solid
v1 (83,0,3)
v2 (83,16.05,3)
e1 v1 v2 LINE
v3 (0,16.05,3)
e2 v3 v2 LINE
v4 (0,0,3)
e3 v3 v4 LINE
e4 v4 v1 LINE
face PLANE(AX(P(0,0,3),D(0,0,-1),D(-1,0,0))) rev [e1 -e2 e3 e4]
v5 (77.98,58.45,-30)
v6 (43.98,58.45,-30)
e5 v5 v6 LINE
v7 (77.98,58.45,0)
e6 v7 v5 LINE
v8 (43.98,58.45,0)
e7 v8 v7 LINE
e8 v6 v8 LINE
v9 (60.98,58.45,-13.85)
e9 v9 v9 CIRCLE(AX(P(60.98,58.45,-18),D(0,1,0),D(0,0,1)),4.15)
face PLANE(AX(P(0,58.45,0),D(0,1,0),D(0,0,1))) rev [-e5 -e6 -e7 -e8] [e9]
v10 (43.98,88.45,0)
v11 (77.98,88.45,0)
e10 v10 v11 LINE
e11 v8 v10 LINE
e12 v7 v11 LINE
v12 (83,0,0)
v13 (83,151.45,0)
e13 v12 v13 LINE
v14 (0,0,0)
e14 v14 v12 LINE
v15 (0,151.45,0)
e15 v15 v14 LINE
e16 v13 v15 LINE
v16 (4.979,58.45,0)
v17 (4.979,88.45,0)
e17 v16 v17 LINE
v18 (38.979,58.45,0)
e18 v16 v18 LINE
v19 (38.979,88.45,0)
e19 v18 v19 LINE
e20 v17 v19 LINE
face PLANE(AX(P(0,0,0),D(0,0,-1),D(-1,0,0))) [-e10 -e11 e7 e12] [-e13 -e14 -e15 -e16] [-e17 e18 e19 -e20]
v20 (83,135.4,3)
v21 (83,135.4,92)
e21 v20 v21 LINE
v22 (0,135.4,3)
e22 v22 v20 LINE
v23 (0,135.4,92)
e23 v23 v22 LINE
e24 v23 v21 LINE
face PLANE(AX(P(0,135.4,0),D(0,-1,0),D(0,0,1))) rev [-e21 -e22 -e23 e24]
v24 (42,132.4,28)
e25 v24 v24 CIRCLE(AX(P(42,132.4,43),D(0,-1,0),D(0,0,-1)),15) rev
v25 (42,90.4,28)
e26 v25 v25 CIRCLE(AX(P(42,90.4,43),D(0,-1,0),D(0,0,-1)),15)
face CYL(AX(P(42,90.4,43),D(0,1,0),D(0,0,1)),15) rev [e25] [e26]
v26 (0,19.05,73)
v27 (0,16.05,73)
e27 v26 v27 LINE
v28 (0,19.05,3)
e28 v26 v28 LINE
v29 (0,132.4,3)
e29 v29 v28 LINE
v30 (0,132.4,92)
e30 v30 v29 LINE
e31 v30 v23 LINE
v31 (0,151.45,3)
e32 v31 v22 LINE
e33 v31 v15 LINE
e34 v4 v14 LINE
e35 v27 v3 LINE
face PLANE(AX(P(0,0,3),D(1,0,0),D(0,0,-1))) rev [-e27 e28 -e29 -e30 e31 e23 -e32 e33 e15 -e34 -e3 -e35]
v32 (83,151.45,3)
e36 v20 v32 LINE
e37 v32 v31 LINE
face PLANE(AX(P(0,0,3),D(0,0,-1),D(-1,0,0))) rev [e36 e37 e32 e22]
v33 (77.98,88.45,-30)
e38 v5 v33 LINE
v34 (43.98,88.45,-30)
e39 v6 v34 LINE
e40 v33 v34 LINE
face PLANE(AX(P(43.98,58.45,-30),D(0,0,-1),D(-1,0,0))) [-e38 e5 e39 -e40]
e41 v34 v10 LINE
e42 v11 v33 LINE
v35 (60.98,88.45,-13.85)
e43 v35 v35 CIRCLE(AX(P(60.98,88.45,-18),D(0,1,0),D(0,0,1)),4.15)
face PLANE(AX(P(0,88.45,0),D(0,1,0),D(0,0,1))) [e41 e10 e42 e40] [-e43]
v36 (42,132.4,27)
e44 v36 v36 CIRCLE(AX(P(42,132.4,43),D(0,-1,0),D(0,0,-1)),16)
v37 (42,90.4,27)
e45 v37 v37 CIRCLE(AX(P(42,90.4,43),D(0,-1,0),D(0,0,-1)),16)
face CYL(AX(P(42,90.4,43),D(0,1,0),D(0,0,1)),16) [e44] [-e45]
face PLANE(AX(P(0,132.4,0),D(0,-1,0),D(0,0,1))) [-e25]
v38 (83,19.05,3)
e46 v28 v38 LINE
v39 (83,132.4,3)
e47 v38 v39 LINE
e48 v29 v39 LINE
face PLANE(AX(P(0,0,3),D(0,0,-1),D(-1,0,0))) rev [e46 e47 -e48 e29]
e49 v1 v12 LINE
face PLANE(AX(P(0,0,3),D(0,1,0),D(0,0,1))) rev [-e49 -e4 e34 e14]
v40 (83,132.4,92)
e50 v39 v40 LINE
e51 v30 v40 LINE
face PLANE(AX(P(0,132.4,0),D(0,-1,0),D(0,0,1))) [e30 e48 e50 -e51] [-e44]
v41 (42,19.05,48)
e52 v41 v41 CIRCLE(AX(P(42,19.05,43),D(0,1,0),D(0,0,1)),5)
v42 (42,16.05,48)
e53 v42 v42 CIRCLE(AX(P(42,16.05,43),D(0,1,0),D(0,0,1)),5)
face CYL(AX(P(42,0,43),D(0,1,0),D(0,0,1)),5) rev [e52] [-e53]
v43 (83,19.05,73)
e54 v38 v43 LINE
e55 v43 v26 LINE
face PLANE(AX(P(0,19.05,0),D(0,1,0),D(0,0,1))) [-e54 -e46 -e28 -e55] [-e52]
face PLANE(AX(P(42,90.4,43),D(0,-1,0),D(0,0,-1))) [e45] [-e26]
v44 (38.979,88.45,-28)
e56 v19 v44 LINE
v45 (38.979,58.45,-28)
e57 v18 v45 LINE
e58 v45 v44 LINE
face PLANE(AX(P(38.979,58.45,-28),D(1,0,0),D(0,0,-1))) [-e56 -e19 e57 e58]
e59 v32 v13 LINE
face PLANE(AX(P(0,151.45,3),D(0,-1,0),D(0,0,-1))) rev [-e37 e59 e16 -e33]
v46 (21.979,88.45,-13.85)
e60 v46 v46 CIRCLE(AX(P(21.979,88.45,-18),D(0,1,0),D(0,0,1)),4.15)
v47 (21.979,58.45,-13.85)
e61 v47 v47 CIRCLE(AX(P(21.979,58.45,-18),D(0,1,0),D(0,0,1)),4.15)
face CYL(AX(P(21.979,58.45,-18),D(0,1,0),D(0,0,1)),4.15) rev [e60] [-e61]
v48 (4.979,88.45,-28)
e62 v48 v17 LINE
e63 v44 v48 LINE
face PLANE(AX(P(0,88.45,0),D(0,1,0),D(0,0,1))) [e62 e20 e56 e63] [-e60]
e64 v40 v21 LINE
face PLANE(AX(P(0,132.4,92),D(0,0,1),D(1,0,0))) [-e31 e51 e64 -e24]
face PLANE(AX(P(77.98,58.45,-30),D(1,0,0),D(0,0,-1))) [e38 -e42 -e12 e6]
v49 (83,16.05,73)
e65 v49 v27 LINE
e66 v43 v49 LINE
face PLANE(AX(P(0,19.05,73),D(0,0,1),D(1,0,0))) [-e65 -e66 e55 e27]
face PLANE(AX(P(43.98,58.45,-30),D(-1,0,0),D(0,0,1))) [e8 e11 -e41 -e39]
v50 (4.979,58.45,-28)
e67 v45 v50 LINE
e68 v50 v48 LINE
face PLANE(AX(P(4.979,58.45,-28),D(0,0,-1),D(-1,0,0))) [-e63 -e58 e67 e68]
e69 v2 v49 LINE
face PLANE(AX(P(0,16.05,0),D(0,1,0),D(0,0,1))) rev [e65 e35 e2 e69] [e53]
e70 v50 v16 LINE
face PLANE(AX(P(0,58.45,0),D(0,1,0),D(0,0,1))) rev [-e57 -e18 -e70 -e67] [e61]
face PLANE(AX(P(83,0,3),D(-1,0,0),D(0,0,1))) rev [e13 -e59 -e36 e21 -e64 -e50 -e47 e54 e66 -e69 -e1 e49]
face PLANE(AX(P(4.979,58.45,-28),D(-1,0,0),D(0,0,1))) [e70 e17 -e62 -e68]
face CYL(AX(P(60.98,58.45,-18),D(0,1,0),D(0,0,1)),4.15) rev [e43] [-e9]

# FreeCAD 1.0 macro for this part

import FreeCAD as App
import Part
import Sketcher
from FreeCAD import Vector


def add_polygon(sketch, points):
    """Adds a closed chain of lines whose ends are joined by coincident constraints."""
    first, n = sketch.GeometryCount, len(points)
    for a, b in zip(points, points[1:] + points[:1]):
        sketch.addGeometry(Part.LineSegment(App.Vector(*a, 0), App.Vector(*b, 0)), False)
    for i in range(n):
        sketch.addConstraint(Sketcher.Constraint("Coincident", first + i, 2, first + (i + 1) % n, 1))

doc = App.newDocument("Part")
params = doc.addObject("Spreadsheet::Sheet", "Params")
for row, (alias, value) in enumerate([
    ("sketch1_width", "83 mm"),
    ("sketch1_height", "151.45 mm"),
    ("pad1_length", "3 mm"),
    ("sketch2_width", "83 mm"),
    ("sketch2_height", "70 mm"),
    ("pad2_length", "3 mm"),
    ("sketch3_width", "83 mm"),
    ("sketch3_height", "89 mm"),
    ("pad3_length", "3 mm"),
    ("sketch4_diameter", "8.3 mm"),
    ("sketch4_width", "34 mm"),
    ("sketch4_height", "28 mm"),
    ("sketch4_height2", "30 mm"),
    ("pad4_length", "30 mm"),
    ("sketch5_diameter", "32 mm"),
    ("sketch5_diameter2", "30 mm"),
    ("pad5_length", "42 mm"),
    ("sketch6_diameter", "10 mm"),
], start=1):
    params.set(f"A{row}", alias)
    params.set(f"B{row}", "=" + value)
    params.setAlias(f"B{row}", alias)

body = doc.addObject("PartDesign::Body", "Body")

# Sketch on XY plane
sketch1 = doc.addObject("Sketcher::SketchObject", "Sketch")
body.addObject(sketch1)
sketch1.AttachmentSupport = (doc.XY_Plane, [""])
sketch1.MapMode = "FlatFace"
add_polygon(sketch1, [(0, 151), (0, 0), (83, 0), (83, 151)])  # lines 0-3
sketch1.addConstraint([
    Sketcher.Constraint("Vertical", 0),
    Sketcher.Constraint("Horizontal", 1),
    Sketcher.Constraint("Vertical", 2),
    Sketcher.Constraint("Horizontal", 3),
    Sketcher.Constraint("Coincident", 0, 2, -1, 1),
    Sketcher.Constraint("DistanceX", 1, 1, 1, 2, 83.0),
    Sketcher.Constraint("DistanceY", 0, 2, 0, 1, 151.45),
])
sketch1.setExpression("Constraints[9]", "Params.sketch1_width")
sketch1.setExpression("Constraints[10]", "Params.sketch1_height")
pad1 = doc.addObject("PartDesign::Pad", "Pad")
body.addObject(pad1)
pad1.Profile = sketch1
pad1.setExpression("Length", "Params.pad1_length")

# Sketch on XZ plane
sketch2 = doc.addObject("Sketcher::SketchObject", "Sketch001")
body.addObject(sketch2)
sketch2.AttachmentSupport = (doc.XZ_Plane, [""])
sketch2.MapMode = "FlatFace"
sketch2.AttachmentOffset = App.Placement(Vector(0, 0, -16.05), App.Rotation())
add_polygon(sketch2, [(83, 3), (83, 73), (0, 73), (0, 3)])  # lines 0-3
sketch2.addConstraint([
    Sketcher.Constraint("Vertical", 0),
    Sketcher.Constraint("Horizontal", 1),
    Sketcher.Constraint("Vertical", 2),
    Sketcher.Constraint("Horizontal", 3),
    Sketcher.Constraint("PointOnObject", 1, 2, -2),
    Sketcher.Constraint("DistanceX", 1, 2, 1, 1, 83.0),
    Sketcher.Constraint("DistanceY", 0, 1, 0, 2, 70.0),
    Sketcher.Constraint("DistanceY", -1, 1, 0, 2, 73.0),
])
sketch2.setExpression("Constraints[9]", "Params.sketch2_width")
sketch2.setExpression("Constraints[10]", "Params.sketch2_height")
pad2 = doc.addObject("PartDesign::Pad", "Pad001")
body.addObject(pad2)
pad2.Profile = sketch2
pad2.setExpression("Length", "Params.pad2_length")
pad2.Reversed = True
doc.recompute()

datumplane = doc.addObject("PartDesign::Plane", "DatumPlane")
body.addObject(datumplane)
datumplane.AttachmentSupport = (doc.XZ_Plane, [""])
datumplane.MapMode = "FlatFace"
datumplane.AttachmentOffset = App.Placement(Vector(0, 0, -75.725), App.Rotation())
mirrored = doc.addObject("PartDesign::Mirrored", "Mirrored")
body.addObject(mirrored)
mirrored.Originals = [pad2]
mirrored.MirrorPlane = (datumplane, [""])
body.Tip = mirrored

# Sketch on XZ plane
sketch3 = doc.addObject("Sketcher::SketchObject", "Sketch002")
body.addObject(sketch3)
sketch3.AttachmentSupport = (doc.XZ_Plane, [""])
sketch3.MapMode = "FlatFace"
sketch3.AttachmentOffset = App.Placement(Vector(0, 0, -135.4), App.Rotation())
add_polygon(sketch3, [(0, 3), (0, 92), (83, 92), (83, 3)])  # lines 0-3
sketch3.addConstraint([
    Sketcher.Constraint("Vertical", 0),
    Sketcher.Constraint("Horizontal", 1),
    Sketcher.Constraint("Vertical", 2),
    Sketcher.Constraint("Horizontal", 3),
    Sketcher.Constraint("PointOnObject", 0, 2, -2),
    Sketcher.Constraint("DistanceX", 1, 1, 1, 2, 83.0),
    Sketcher.Constraint("DistanceY", 0, 1, 0, 2, 89.0),
    Sketcher.Constraint("DistanceY", -1, 1, 0, 2, 92.0),
])
sketch3.setExpression("Constraints[9]", "Params.sketch3_width")
sketch3.setExpression("Constraints[10]", "Params.sketch3_height")
pad3 = doc.addObject("PartDesign::Pad", "Pad002")
body.addObject(pad3)
pad3.Profile = sketch3
pad3.setExpression("Length", "Params.pad3_length")

# Sketch on XZ plane
sketch4 = doc.addObject("Sketcher::SketchObject", "Sketch003")
body.addObject(sketch4)
sketch4.AttachmentSupport = (doc.XZ_Plane, [""])
sketch4.MapMode = "FlatFace"
sketch4.AttachmentOffset = App.Placement(Vector(0, 0, -88.45), App.Rotation())
add_polygon(sketch4, [(5, -28), (5, 0), (39, 0), (39, -28)])  # lines 0-3
sketch4.addGeometry(Part.Circle(Vector(22, -18, 0), Vector(0, 0, 1), 4.2), False)  # 4
add_polygon(sketch4, [(44, -30), (44, 0), (78, 0), (78, -30)])  # lines 5-8
sketch4.addGeometry(Part.Circle(Vector(61, -18, 0), Vector(0, 0, 1), 4.2), False)  # 9
sketch4.addConstraint([
    Sketcher.Constraint("Vertical", 0),
    Sketcher.Constraint("Horizontal", 1),
    Sketcher.Constraint("Vertical", 2),
    Sketcher.Constraint("Horizontal", 3),
    Sketcher.Constraint("Vertical", 5),
    Sketcher.Constraint("Horizontal", 6),
    Sketcher.Constraint("Vertical", 7),
    Sketcher.Constraint("Horizontal", 8),
    Sketcher.Constraint("Equal", 4, 9),
    Sketcher.Constraint("PointOnObject", 0, 2, -1),
    Sketcher.Constraint("PointOnObject", 5, 2, -1),
    Sketcher.Constraint("Horizontal", 4, 3, 9, 3),
    Sketcher.Constraint("Equal", 3, 6),
    Sketcher.Constraint("Diameter", 4, 8.3),
    Sketcher.Constraint("DistanceX", 1, 1, 1, 2, 34.0),
    Sketcher.Constraint("DistanceY", 0, 1, 0, 2, 28.0),
    Sketcher.Constraint("DistanceY", 5, 1, 5, 2, 30.0),
    Sketcher.Constraint("DistanceY", 4, 3, -1, 1, 18.0),
    Sketcher.Constraint("DistanceX", 0, 2, 4, 3, 17.0),
    Sketcher.Constraint("DistanceX", 5, 2, 9, 3, 17.0),
    Sketcher.Constraint("DistanceX", -1, 1, 9, 3, 60.98),
    Sketcher.Constraint("DistanceX", -1, 1, 4, 3, 21.979),
])
sketch4.setExpression("Constraints[21]", "Params.sketch4_diameter")
sketch4.setExpression("Constraints[22]", "Params.sketch4_width")
sketch4.setExpression("Constraints[23]", "Params.sketch4_height")
sketch4.setExpression("Constraints[24]", "Params.sketch4_height2")
pad4 = doc.addObject("PartDesign::Pad", "Pad003")
body.addObject(pad4)
pad4.Profile = sketch4
pad4.setExpression("Length", "Params.pad4_length")

# Sketch on XZ plane
sketch5 = doc.addObject("Sketcher::SketchObject", "Sketch004")
body.addObject(sketch5)
sketch5.AttachmentSupport = (doc.XZ_Plane, [""])
sketch5.MapMode = "FlatFace"
sketch5.AttachmentOffset = App.Placement(Vector(0, 0, -132.4), App.Rotation())
sketch5.addGeometry([
    Part.Circle(Vector(42, 43, 0), Vector(0, 0, 1), 16),
    Part.Circle(Vector(42, 43, 0), Vector(0, 0, 1), 15),
], False)
sketch5.addConstraint([
    Sketcher.Constraint("Coincident", 1, 3, 0, 3),
    Sketcher.Constraint("Diameter", 0, 32.0),
    Sketcher.Constraint("Diameter", 1, 30.0),
    Sketcher.Constraint("DistanceX", -1, 1, 0, 3, 42.0),
    Sketcher.Constraint("DistanceY", -1, 1, 0, 3, 43.0),
])
sketch5.setExpression("Constraints[1]", "Params.sketch5_diameter")
sketch5.setExpression("Constraints[2]", "Params.sketch5_diameter2")
pad5 = doc.addObject("PartDesign::Pad", "Pad004")
body.addObject(pad5)
pad5.Profile = sketch5
pad5.setExpression("Length", "Params.pad5_length")

# Sketch on XZ plane
sketch6 = doc.addObject("Sketcher::SketchObject", "Sketch005")
body.addObject(sketch6)
sketch6.AttachmentSupport = (doc.XZ_Plane, [""])
sketch6.MapMode = "FlatFace"
sketch6.AttachmentOffset = App.Placement(Vector(0, 0, -19.05), App.Rotation())
sketch6.addGeometry(Part.Circle(Vector(42, 43, 0), Vector(0, 0, 1), 5), False)
sketch6.addConstraint([
    Sketcher.Constraint("Diameter", 0, 10.0),
    Sketcher.Constraint("DistanceX", -1, 1, 0, 3, 42.0),
    Sketcher.Constraint("DistanceY", -1, 1, 0, 3, 43.0),
])
sketch6.setExpression("Constraints[0]", "Params.sketch6_diameter")
pocket1 = doc.addObject("PartDesign::Pocket", "Pocket")
body.addObject(pocket1)
pocket1.Profile = sketch6
pocket1.Type = "ThroughAll"
pocket1.Reversed = True

doc.recompute()
